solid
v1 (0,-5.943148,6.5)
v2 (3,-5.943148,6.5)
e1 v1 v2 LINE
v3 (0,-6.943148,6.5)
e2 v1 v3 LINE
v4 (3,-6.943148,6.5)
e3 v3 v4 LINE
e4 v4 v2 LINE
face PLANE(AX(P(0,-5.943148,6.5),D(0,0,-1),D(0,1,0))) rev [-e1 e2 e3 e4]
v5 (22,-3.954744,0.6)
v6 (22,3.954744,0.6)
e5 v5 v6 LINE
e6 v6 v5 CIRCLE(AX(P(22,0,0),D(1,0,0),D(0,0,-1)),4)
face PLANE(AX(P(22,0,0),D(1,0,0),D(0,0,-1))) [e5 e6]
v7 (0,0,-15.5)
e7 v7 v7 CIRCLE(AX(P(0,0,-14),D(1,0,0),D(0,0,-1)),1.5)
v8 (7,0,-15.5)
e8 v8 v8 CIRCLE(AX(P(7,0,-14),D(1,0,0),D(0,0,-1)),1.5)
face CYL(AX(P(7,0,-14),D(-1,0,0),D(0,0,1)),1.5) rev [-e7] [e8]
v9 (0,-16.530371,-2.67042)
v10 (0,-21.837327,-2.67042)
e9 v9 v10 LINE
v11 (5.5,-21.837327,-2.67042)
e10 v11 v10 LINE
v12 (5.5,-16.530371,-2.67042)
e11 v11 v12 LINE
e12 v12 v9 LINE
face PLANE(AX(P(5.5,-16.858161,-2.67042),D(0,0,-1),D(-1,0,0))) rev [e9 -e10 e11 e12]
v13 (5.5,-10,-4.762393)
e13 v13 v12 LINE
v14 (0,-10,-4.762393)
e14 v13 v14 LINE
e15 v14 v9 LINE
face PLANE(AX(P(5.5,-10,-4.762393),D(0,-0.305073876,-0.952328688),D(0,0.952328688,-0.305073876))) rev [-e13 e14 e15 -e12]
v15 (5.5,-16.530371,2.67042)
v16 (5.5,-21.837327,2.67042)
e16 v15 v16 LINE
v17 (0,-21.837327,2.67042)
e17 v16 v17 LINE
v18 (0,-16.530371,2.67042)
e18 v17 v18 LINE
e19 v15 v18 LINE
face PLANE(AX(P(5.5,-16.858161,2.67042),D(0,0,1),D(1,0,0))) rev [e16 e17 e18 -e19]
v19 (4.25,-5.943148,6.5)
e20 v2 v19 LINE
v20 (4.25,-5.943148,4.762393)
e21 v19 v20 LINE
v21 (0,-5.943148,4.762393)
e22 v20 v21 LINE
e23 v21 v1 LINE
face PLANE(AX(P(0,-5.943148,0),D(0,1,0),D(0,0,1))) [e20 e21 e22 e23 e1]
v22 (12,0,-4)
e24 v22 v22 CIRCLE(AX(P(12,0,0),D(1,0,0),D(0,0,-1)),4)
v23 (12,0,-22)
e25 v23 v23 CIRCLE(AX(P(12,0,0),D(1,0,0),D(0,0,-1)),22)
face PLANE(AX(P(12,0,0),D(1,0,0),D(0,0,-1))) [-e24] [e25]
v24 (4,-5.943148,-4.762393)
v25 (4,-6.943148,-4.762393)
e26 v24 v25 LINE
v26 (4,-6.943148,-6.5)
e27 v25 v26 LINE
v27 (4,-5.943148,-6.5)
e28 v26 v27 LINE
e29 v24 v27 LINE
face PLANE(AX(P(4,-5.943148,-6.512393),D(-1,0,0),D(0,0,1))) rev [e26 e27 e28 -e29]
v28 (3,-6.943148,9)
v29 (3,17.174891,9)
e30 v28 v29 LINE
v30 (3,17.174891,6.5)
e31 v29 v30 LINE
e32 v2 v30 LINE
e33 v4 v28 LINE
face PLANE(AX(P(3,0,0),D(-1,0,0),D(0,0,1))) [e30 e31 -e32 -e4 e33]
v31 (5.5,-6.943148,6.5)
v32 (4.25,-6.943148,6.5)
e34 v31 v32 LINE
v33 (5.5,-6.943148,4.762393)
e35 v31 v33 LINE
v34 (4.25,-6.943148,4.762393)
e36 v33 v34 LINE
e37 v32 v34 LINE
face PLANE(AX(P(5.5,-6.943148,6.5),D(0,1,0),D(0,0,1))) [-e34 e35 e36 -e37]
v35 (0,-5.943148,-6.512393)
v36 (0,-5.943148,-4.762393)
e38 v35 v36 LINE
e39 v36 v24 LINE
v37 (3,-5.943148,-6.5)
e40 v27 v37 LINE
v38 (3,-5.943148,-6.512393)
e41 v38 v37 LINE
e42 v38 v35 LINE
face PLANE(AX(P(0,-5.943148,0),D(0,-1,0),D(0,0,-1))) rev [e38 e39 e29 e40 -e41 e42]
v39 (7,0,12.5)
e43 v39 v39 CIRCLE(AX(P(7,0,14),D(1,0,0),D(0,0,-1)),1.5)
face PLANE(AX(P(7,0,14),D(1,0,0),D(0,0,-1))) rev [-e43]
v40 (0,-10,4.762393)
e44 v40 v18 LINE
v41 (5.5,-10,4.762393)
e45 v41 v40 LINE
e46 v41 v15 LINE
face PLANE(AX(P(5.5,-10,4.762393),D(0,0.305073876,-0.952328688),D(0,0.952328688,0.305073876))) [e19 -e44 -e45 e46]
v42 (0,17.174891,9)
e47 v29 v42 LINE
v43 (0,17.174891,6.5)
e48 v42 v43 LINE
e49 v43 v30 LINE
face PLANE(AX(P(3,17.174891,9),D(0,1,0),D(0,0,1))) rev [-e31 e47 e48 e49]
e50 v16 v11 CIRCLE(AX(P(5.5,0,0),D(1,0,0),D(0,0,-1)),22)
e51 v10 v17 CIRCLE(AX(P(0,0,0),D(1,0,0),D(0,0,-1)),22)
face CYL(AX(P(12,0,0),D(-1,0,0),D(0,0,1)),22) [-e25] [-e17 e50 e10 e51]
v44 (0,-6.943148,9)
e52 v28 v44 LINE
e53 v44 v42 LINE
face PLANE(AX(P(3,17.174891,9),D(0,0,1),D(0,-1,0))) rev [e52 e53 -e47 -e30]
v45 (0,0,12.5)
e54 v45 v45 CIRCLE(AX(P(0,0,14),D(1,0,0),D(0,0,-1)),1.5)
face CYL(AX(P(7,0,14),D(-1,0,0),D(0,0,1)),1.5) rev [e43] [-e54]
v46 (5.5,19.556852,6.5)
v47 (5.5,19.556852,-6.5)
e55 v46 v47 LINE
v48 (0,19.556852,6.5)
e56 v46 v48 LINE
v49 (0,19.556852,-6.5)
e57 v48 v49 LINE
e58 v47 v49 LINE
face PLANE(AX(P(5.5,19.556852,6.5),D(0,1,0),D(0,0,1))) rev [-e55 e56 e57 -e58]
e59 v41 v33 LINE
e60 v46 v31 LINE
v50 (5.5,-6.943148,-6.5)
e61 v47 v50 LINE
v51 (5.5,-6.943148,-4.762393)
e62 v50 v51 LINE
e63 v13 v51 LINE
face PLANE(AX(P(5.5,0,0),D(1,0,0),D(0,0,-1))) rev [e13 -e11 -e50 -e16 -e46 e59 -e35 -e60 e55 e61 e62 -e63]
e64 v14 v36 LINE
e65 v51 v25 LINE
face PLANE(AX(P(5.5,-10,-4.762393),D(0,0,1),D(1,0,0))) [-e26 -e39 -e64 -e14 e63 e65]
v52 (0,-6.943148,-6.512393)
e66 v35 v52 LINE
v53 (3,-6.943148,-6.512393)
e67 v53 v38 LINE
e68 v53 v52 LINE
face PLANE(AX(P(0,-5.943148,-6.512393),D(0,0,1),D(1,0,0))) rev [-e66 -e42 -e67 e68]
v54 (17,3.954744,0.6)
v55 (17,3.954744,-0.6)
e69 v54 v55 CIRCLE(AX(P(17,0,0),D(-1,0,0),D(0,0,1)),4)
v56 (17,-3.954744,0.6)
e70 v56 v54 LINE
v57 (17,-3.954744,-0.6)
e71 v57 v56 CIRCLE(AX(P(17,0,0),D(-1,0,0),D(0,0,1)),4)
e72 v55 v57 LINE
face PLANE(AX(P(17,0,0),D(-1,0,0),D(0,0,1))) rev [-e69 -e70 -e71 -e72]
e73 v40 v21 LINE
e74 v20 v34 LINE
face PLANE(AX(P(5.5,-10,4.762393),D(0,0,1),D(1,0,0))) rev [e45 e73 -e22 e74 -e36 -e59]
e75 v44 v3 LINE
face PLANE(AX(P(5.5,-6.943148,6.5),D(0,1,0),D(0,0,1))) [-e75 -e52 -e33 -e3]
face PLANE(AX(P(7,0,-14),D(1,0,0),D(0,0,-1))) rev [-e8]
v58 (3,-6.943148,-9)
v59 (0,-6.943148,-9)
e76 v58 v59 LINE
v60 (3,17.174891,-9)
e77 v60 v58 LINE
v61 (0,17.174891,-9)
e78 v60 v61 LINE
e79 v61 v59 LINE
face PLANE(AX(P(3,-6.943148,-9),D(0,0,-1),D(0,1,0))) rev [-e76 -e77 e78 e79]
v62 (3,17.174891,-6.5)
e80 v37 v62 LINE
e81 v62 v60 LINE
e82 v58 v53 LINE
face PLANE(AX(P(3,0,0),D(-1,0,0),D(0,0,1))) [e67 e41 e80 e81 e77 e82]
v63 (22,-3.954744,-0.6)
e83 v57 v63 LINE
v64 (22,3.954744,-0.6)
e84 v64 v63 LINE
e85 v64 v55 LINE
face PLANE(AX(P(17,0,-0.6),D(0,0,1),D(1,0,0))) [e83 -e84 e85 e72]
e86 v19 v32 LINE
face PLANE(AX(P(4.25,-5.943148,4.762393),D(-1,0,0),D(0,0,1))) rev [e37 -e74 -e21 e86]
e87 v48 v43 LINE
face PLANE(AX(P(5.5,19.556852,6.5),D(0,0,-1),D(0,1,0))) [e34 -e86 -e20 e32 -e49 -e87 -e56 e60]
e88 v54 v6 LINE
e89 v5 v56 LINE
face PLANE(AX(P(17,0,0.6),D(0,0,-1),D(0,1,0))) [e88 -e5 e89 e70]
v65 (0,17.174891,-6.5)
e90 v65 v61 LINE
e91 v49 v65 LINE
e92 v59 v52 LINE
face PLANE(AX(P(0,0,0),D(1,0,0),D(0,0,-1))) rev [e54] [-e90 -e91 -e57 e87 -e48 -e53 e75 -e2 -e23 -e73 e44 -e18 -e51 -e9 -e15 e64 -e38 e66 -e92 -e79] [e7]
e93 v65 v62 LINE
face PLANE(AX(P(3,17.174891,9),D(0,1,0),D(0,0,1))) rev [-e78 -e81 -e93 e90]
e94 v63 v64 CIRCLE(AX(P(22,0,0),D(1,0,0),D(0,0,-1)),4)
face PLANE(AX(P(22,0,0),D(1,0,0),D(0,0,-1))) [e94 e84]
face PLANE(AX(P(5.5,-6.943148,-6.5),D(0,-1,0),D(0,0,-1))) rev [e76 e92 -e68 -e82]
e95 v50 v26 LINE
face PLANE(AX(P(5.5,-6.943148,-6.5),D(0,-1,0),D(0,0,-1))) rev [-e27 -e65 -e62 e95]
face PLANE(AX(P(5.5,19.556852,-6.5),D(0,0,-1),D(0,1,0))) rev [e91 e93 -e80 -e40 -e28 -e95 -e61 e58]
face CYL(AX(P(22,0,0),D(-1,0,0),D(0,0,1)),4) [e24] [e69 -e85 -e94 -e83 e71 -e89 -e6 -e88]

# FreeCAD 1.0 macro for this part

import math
import FreeCAD as App
import Part
import Sketcher

V = App.Vector
Q = App.Units.Quantity

doc = App.newDocument("Part")
body = doc.addObject("PartDesign::Body", "Body")

sketch1 = body.newObject("Sketcher::SketchObject", "Sketch")
sketch1.AttachmentSupport = (doc.getObject("YZ_Plane"), [""])
sketch1.MapMode = "FlatFace"
sketch1.addGeometry(Part.Circle(V(0, 0, 0), V(0, 0, 1), 22), False)
sketch1.addConstraint([
    Sketcher.Constraint("Coincident", 0, 3, -1, 1),
    Sketcher.Constraint("Diameter", 0, Q("44 mm")),
])
pad1 = body.newObject("PartDesign::Pad", "Pad")
pad1.Profile = sketch1
pad1.Length = 12

sketch2 = body.newObject("Sketcher::SketchObject", "Sketch001")
sketch2.AttachmentSupport = (doc.getObject("YZ_Plane"), [""])
sketch2.MapMode = "FlatFace"
sketch2.addGeometry([
    Part.LineSegment(V(-10, 4.8, 0), V(-16.5, 2.7, 0)),
    Part.LineSegment(V(-16.5, 2.7, 0), V(-21.8, 2.7, 0)),
    Part.ArcOfCircle(Part.Circle(V(0, 0, 0), V(0, 0, 1), 22), math.radians(173.03), math.radians(177.39)),
    Part.LineSegment(V(-22, 1, 0), V(-25.2, 0, 0)),
    Part.LineSegment(V(-25.2, 0, 0), V(-22, -1, 0)),
    Part.ArcOfCircle(Part.Circle(V(0, 0, 0), V(0, 0, 1), 22), math.radians(-177.39), math.radians(-173.03)),
    Part.LineSegment(V(-21.8, -2.7, 0), V(-16.5, -2.7, 0)),
    Part.LineSegment(V(-16.5, -2.7, 0), V(-10, -4.8, 0)),
    Part.LineSegment(V(-10, -4.8, 0), V(-6.9, -4.8, 0)),
    Part.LineSegment(V(-6.9, -4.8, 0), V(-6.9, -6.5, 0)),
    Part.LineSegment(V(-6.9, -6.5, 0), V(19.6, -6.5, 0)),
    Part.LineSegment(V(19.6, -6.5, 0), V(19.6, 6.5, 0)),
    Part.LineSegment(V(19.6, 6.5, 0), V(-6.9, 6.5, 0)),
    Part.LineSegment(V(-6.9, 6.5, 0), V(-6.9, 4.8, 0)),
    Part.LineSegment(V(-6.9, 4.8, 0), V(-10, 4.8, 0)),
], False)
sketch2.addConstraint([
    Sketcher.Constraint("Coincident", 0, 2, 1, 1),
    Sketcher.Constraint("Coincident", 1, 2, 2, 1),
    Sketcher.Constraint("Coincident", 2, 2, 3, 1),
    Sketcher.Constraint("Coincident", 3, 2, 4, 1),
    Sketcher.Constraint("Coincident", 4, 2, 5, 1),
    Sketcher.Constraint("Coincident", 5, 2, 6, 1),
    Sketcher.Constraint("Coincident", 6, 2, 7, 1),
    Sketcher.Constraint("Coincident", 7, 2, 8, 1),
    Sketcher.Constraint("Coincident", 8, 2, 9, 1),
    Sketcher.Constraint("Coincident", 9, 2, 10, 1),
    Sketcher.Constraint("Coincident", 10, 2, 11, 1),
    Sketcher.Constraint("Coincident", 11, 2, 12, 1),
    Sketcher.Constraint("Coincident", 12, 2, 13, 1),
    Sketcher.Constraint("Coincident", 13, 2, 14, 1),
    Sketcher.Constraint("Coincident", 14, 2, 0, 1),
    Sketcher.Constraint("Horizontal", 1),
    Sketcher.Constraint("Horizontal", 6),
    Sketcher.Constraint("Horizontal", 8),
    Sketcher.Constraint("Vertical", 9),
    Sketcher.Constraint("Horizontal", 10),
    Sketcher.Constraint("Vertical", 11),
    Sketcher.Constraint("Horizontal", 12),
    Sketcher.Constraint("Vertical", 13),
    Sketcher.Constraint("Horizontal", 14),
    Sketcher.Constraint("Coincident", 2, 3, -1, 1),
    Sketcher.Constraint("Coincident", 5, 3, -1, 1),
    Sketcher.Constraint("Equal", 2, 5),
    Sketcher.Constraint("Symmetric", 0, 2, 6, 2, -1),
    Sketcher.Constraint("Symmetric", 9, 2, 12, 2, -1),
    Sketcher.Constraint("Symmetric", 7, 2, 14, 2, -1),
    Sketcher.Constraint("PointOnObject", 3, 2, -1),
    Sketcher.Constraint("Vertical", 2, 2, 4, 2),
    Sketcher.Constraint("Radius", 2, Q("22 mm")),
    Sketcher.Constraint("DistanceY", 11, 1, 11, 2, Q("13 mm")),
    Sketcher.Constraint("Angle", 3, Q("-163 deg")),
    Sketcher.Constraint("DistanceX", 10, 1, 10, 2, Q("26.5 mm")),
    Sketcher.Constraint("DistanceX", 7, 2, -1, 1, Q("10 mm")),
    Sketcher.Constraint("DistanceX", 3, 2, -1, 1, Q("25.25 mm")),
    Sketcher.Constraint("DistanceX", 8, 1, 8, 2, Q("3.056852 mm")),
    Sketcher.Constraint("DistanceX", 1, 2, 1, 1, Q("5.306956 mm")),
    Sketcher.Constraint("DistanceY", 9, 2, 9, 1, Q("1.737607 mm")),
    Sketcher.Constraint("DistanceX", 0, 2, -1, 1, Q("16.530371 mm")),
])
pocket1 = body.newObject("PartDesign::Pocket", "Pocket")
pocket1.Profile = sketch2
pocket1.Length = 5.5
pocket1.Reversed = True

sketch3 = body.newObject("Sketcher::SketchObject", "Sketch002")
sketch3.AttachmentSupport = (doc.getObject("YZ_Plane"), [""])
sketch3.MapMode = "FlatFace"
sketch3.addGeometry([
    Part.LineSegment(V(17, -9, 0), V(-7, -9, 0)),
    Part.LineSegment(V(-7, -9, 0), V(-7, 9, 0)),
    Part.LineSegment(V(-7, 9, 0), V(17, 9, 0)),
    Part.LineSegment(V(17, 9, 0), V(17, -9, 0)),
], False)
sketch3.addConstraint([
    Sketcher.Constraint("Coincident", 0, 2, 1, 1),
    Sketcher.Constraint("Coincident", 1, 2, 2, 1),
    Sketcher.Constraint("Coincident", 2, 2, 3, 1),
    Sketcher.Constraint("Coincident", 3, 2, 0, 1),
    Sketcher.Constraint("Horizontal", 0),
    Sketcher.Constraint("Vertical", 1),
    Sketcher.Constraint("Horizontal", 2),
    Sketcher.Constraint("Vertical", 3),
    Sketcher.Constraint("DistanceY", 1, 1, 1, 2, Q("18 mm")),
    Sketcher.Constraint("DistanceY", 0, 2, -1, 1, Q("9 mm")),
    Sketcher.Constraint("DistanceX", 0, 2, 0, 1, Q("24.118039 mm")),
    Sketcher.Constraint("DistanceX", 0, 2, -1, 1, Q("6.943148 mm")),
])
pocket2 = body.newObject("PartDesign::Pocket", "Pocket001")
pocket2.Profile = sketch3
pocket2.Length = 3
pocket2.Reversed = True

sketch4 = body.newObject("Sketcher::SketchObject", "Sketch003")
sketch4.AttachmentSupport = (doc.getObject("YZ_Plane"), [""])
sketch4.MapMode = "FlatFace"
sketch4.AttachmentOffset = App.Placement(V(0, 0, 12), App.Rotation())
sketch4.addGeometry(Part.Circle(V(0, 0, 0), V(0, 0, 1), 4), False)
sketch4.addConstraint([
    Sketcher.Constraint("Coincident", 0, 3, -1, 1),
    Sketcher.Constraint("Diameter", 0, Q("8 mm")),
])
pad2 = body.newObject("PartDesign::Pad", "Pad001")
pad2.Profile = sketch4
pad2.Length = 10

sketch5 = body.newObject("Sketcher::SketchObject", "Sketch004")
sketch5.AttachmentSupport = (doc.getObject("YZ_Plane"), [""])
sketch5.MapMode = "FlatFace"
sketch5.AttachmentOffset = App.Placement(V(0, 0, 22), App.Rotation())
sketch5.addGeometry([
    Part.LineSegment(V(5, 0.6, 0), V(-5, 0.6, 0)),
    Part.LineSegment(V(-5, 0.6, 0), V(-5, -0.6, 0)),
    Part.LineSegment(V(-5, -0.6, 0), V(5, -0.6, 0)),
    Part.LineSegment(V(5, -0.6, 0), V(5, 0.6, 0)),
], False)
sketch5.addConstraint([
    Sketcher.Constraint("Coincident", 0, 2, 1, 1),
    Sketcher.Constraint("Coincident", 1, 2, 2, 1),
    Sketcher.Constraint("Coincident", 2, 2, 3, 1),
    Sketcher.Constraint("Coincident", 3, 2, 0, 1),
    Sketcher.Constraint("Horizontal", 0),
    Sketcher.Constraint("Vertical", 1),
    Sketcher.Constraint("Horizontal", 2),
    Sketcher.Constraint("Vertical", 3),
    Sketcher.Constraint("Symmetric", 0, 2, 2, 2, -1, 1),
    Sketcher.Constraint("DistanceX", 0, 2, 0, 1, Q("10 mm")),
    Sketcher.Constraint("DistanceY", 1, 2, 1, 1, Q("1.2 mm")),
])
pocket3 = body.newObject("PartDesign::Pocket", "Pocket002")
pocket3.Profile = sketch5
pocket3.Length = 5

sketch6 = body.newObject("Sketcher::SketchObject", "Sketch005")
sketch6.AttachmentSupport = (doc.getObject("XZ_Plane"), [""])
sketch6.MapMode = "FlatFace"
sketch6.AttachmentOffset = App.Placement(V(0, 0, 6.943148), App.Rotation())
sketch6.addGeometry([
    Part.LineSegment(V(0, -6.5, 0), V(0, -4.8, 0)),
    Part.LineSegment(V(0, -4.8, 0), V(4, -4.8, 0)),
    Part.LineSegment(V(4, -4.8, 0), V(4, -6.5, 0)),
    Part.LineSegment(V(4, -6.5, 0), V(0, -6.5, 0)),
], False)
sketch6.addConstraint([
    Sketcher.Constraint("Coincident", 0, 2, 1, 1),
    Sketcher.Constraint("Coincident", 1, 2, 2, 1),
    Sketcher.Constraint("Coincident", 2, 2, 3, 1),
    Sketcher.Constraint("Coincident", 3, 2, 0, 1),
    Sketcher.Constraint("Vertical", 0),
    Sketcher.Constraint("Horizontal", 1),
    Sketcher.Constraint("Vertical", 2),
    Sketcher.Constraint("Horizontal", 3),
    Sketcher.Constraint("PointOnObject", 0, 2, -2),
    Sketcher.Constraint("DistanceX", 1, 1, 1, 2, Q("4 mm")),
    Sketcher.Constraint("DistanceY", 0, 1, 0, 2, Q("1.75 mm")),
    Sketcher.Constraint("DistanceY", 0, 2, -1, 1, Q("4.762393 mm")),
])
pad3 = body.newObject("PartDesign::Pad", "Pad002")
pad3.Profile = sketch6
pad3.Length = 1
pad3.Reversed = True

sketch7 = body.newObject("Sketcher::SketchObject", "Sketch006")
sketch7.AttachmentSupport = (doc.getObject("XZ_Plane"), [""])
sketch7.MapMode = "FlatFace"
sketch7.AttachmentOffset = App.Placement(V(0, 0, 6.943148), App.Rotation())
sketch7.addGeometry([
    Part.LineSegment(V(0, 4.8, 0), V(0, 6.5, 0)),
    Part.LineSegment(V(0, 6.5, 0), V(4.2, 6.5, 0)),
    Part.LineSegment(V(4.2, 6.5, 0), V(4.2, 4.8, 0)),
    Part.LineSegment(V(4.2, 4.8, 0), V(0, 4.8, 0)),
], False)
sketch7.addConstraint([
    Sketcher.Constraint("Coincident", 0, 2, 1, 1),
    Sketcher.Constraint("Coincident", 1, 2, 2, 1),
    Sketcher.Constraint("Coincident", 2, 2, 3, 1),
    Sketcher.Constraint("Coincident", 3, 2, 0, 1),
    Sketcher.Constraint("Vertical", 0),
    Sketcher.Constraint("Horizontal", 1),
    Sketcher.Constraint("Vertical", 2),
    Sketcher.Constraint("Horizontal", 3),
    Sketcher.Constraint("PointOnObject", 0, 2, -2),
    Sketcher.Constraint("DistanceX", 1, 1, 1, 2, Q("4.25 mm")),
    Sketcher.Constraint("DistanceY", -1, 1, 0, 2, Q("6.5 mm")),
    Sketcher.Constraint("DistanceY", 0, 1, 0, 2, Q("1.737607 mm")),
])
pad4 = body.newObject("PartDesign::Pad", "Pad003")
pad4.Profile = sketch7
pad4.Length = 1
pad4.Reversed = True

sketch8 = body.newObject("Sketcher::SketchObject", "Sketch007")
sketch8.AttachmentSupport = (doc.getObject("YZ_Plane"), [""])
sketch8.MapMode = "FlatFace"
sketch8.addGeometry([
    Part.Circle(V(0, 14, 0), V(0, 0, 1), 1.5),
    Part.Circle(V(0, -14, 0), V(0, 0, 1), 1.5),
], False)
sketch8.addConstraint([
    Sketcher.Constraint("Equal", 0, 1),
    Sketcher.Constraint("Symmetric", 0, 3, 1, 3, -1, 1),
    Sketcher.Constraint("PointOnObject", 0, 3, -2),
    Sketcher.Constraint("Diameter", 0, Q("3 mm")),
    Sketcher.Constraint("DistanceY", -1, 1, 0, 3, Q("14 mm")),
])
pocket4 = body.newObject("PartDesign::Pocket", "Pocket003")
pocket4.Profile = sketch8
pocket4.Length = 7
pocket4.Reversed = True

doc.recompute()
